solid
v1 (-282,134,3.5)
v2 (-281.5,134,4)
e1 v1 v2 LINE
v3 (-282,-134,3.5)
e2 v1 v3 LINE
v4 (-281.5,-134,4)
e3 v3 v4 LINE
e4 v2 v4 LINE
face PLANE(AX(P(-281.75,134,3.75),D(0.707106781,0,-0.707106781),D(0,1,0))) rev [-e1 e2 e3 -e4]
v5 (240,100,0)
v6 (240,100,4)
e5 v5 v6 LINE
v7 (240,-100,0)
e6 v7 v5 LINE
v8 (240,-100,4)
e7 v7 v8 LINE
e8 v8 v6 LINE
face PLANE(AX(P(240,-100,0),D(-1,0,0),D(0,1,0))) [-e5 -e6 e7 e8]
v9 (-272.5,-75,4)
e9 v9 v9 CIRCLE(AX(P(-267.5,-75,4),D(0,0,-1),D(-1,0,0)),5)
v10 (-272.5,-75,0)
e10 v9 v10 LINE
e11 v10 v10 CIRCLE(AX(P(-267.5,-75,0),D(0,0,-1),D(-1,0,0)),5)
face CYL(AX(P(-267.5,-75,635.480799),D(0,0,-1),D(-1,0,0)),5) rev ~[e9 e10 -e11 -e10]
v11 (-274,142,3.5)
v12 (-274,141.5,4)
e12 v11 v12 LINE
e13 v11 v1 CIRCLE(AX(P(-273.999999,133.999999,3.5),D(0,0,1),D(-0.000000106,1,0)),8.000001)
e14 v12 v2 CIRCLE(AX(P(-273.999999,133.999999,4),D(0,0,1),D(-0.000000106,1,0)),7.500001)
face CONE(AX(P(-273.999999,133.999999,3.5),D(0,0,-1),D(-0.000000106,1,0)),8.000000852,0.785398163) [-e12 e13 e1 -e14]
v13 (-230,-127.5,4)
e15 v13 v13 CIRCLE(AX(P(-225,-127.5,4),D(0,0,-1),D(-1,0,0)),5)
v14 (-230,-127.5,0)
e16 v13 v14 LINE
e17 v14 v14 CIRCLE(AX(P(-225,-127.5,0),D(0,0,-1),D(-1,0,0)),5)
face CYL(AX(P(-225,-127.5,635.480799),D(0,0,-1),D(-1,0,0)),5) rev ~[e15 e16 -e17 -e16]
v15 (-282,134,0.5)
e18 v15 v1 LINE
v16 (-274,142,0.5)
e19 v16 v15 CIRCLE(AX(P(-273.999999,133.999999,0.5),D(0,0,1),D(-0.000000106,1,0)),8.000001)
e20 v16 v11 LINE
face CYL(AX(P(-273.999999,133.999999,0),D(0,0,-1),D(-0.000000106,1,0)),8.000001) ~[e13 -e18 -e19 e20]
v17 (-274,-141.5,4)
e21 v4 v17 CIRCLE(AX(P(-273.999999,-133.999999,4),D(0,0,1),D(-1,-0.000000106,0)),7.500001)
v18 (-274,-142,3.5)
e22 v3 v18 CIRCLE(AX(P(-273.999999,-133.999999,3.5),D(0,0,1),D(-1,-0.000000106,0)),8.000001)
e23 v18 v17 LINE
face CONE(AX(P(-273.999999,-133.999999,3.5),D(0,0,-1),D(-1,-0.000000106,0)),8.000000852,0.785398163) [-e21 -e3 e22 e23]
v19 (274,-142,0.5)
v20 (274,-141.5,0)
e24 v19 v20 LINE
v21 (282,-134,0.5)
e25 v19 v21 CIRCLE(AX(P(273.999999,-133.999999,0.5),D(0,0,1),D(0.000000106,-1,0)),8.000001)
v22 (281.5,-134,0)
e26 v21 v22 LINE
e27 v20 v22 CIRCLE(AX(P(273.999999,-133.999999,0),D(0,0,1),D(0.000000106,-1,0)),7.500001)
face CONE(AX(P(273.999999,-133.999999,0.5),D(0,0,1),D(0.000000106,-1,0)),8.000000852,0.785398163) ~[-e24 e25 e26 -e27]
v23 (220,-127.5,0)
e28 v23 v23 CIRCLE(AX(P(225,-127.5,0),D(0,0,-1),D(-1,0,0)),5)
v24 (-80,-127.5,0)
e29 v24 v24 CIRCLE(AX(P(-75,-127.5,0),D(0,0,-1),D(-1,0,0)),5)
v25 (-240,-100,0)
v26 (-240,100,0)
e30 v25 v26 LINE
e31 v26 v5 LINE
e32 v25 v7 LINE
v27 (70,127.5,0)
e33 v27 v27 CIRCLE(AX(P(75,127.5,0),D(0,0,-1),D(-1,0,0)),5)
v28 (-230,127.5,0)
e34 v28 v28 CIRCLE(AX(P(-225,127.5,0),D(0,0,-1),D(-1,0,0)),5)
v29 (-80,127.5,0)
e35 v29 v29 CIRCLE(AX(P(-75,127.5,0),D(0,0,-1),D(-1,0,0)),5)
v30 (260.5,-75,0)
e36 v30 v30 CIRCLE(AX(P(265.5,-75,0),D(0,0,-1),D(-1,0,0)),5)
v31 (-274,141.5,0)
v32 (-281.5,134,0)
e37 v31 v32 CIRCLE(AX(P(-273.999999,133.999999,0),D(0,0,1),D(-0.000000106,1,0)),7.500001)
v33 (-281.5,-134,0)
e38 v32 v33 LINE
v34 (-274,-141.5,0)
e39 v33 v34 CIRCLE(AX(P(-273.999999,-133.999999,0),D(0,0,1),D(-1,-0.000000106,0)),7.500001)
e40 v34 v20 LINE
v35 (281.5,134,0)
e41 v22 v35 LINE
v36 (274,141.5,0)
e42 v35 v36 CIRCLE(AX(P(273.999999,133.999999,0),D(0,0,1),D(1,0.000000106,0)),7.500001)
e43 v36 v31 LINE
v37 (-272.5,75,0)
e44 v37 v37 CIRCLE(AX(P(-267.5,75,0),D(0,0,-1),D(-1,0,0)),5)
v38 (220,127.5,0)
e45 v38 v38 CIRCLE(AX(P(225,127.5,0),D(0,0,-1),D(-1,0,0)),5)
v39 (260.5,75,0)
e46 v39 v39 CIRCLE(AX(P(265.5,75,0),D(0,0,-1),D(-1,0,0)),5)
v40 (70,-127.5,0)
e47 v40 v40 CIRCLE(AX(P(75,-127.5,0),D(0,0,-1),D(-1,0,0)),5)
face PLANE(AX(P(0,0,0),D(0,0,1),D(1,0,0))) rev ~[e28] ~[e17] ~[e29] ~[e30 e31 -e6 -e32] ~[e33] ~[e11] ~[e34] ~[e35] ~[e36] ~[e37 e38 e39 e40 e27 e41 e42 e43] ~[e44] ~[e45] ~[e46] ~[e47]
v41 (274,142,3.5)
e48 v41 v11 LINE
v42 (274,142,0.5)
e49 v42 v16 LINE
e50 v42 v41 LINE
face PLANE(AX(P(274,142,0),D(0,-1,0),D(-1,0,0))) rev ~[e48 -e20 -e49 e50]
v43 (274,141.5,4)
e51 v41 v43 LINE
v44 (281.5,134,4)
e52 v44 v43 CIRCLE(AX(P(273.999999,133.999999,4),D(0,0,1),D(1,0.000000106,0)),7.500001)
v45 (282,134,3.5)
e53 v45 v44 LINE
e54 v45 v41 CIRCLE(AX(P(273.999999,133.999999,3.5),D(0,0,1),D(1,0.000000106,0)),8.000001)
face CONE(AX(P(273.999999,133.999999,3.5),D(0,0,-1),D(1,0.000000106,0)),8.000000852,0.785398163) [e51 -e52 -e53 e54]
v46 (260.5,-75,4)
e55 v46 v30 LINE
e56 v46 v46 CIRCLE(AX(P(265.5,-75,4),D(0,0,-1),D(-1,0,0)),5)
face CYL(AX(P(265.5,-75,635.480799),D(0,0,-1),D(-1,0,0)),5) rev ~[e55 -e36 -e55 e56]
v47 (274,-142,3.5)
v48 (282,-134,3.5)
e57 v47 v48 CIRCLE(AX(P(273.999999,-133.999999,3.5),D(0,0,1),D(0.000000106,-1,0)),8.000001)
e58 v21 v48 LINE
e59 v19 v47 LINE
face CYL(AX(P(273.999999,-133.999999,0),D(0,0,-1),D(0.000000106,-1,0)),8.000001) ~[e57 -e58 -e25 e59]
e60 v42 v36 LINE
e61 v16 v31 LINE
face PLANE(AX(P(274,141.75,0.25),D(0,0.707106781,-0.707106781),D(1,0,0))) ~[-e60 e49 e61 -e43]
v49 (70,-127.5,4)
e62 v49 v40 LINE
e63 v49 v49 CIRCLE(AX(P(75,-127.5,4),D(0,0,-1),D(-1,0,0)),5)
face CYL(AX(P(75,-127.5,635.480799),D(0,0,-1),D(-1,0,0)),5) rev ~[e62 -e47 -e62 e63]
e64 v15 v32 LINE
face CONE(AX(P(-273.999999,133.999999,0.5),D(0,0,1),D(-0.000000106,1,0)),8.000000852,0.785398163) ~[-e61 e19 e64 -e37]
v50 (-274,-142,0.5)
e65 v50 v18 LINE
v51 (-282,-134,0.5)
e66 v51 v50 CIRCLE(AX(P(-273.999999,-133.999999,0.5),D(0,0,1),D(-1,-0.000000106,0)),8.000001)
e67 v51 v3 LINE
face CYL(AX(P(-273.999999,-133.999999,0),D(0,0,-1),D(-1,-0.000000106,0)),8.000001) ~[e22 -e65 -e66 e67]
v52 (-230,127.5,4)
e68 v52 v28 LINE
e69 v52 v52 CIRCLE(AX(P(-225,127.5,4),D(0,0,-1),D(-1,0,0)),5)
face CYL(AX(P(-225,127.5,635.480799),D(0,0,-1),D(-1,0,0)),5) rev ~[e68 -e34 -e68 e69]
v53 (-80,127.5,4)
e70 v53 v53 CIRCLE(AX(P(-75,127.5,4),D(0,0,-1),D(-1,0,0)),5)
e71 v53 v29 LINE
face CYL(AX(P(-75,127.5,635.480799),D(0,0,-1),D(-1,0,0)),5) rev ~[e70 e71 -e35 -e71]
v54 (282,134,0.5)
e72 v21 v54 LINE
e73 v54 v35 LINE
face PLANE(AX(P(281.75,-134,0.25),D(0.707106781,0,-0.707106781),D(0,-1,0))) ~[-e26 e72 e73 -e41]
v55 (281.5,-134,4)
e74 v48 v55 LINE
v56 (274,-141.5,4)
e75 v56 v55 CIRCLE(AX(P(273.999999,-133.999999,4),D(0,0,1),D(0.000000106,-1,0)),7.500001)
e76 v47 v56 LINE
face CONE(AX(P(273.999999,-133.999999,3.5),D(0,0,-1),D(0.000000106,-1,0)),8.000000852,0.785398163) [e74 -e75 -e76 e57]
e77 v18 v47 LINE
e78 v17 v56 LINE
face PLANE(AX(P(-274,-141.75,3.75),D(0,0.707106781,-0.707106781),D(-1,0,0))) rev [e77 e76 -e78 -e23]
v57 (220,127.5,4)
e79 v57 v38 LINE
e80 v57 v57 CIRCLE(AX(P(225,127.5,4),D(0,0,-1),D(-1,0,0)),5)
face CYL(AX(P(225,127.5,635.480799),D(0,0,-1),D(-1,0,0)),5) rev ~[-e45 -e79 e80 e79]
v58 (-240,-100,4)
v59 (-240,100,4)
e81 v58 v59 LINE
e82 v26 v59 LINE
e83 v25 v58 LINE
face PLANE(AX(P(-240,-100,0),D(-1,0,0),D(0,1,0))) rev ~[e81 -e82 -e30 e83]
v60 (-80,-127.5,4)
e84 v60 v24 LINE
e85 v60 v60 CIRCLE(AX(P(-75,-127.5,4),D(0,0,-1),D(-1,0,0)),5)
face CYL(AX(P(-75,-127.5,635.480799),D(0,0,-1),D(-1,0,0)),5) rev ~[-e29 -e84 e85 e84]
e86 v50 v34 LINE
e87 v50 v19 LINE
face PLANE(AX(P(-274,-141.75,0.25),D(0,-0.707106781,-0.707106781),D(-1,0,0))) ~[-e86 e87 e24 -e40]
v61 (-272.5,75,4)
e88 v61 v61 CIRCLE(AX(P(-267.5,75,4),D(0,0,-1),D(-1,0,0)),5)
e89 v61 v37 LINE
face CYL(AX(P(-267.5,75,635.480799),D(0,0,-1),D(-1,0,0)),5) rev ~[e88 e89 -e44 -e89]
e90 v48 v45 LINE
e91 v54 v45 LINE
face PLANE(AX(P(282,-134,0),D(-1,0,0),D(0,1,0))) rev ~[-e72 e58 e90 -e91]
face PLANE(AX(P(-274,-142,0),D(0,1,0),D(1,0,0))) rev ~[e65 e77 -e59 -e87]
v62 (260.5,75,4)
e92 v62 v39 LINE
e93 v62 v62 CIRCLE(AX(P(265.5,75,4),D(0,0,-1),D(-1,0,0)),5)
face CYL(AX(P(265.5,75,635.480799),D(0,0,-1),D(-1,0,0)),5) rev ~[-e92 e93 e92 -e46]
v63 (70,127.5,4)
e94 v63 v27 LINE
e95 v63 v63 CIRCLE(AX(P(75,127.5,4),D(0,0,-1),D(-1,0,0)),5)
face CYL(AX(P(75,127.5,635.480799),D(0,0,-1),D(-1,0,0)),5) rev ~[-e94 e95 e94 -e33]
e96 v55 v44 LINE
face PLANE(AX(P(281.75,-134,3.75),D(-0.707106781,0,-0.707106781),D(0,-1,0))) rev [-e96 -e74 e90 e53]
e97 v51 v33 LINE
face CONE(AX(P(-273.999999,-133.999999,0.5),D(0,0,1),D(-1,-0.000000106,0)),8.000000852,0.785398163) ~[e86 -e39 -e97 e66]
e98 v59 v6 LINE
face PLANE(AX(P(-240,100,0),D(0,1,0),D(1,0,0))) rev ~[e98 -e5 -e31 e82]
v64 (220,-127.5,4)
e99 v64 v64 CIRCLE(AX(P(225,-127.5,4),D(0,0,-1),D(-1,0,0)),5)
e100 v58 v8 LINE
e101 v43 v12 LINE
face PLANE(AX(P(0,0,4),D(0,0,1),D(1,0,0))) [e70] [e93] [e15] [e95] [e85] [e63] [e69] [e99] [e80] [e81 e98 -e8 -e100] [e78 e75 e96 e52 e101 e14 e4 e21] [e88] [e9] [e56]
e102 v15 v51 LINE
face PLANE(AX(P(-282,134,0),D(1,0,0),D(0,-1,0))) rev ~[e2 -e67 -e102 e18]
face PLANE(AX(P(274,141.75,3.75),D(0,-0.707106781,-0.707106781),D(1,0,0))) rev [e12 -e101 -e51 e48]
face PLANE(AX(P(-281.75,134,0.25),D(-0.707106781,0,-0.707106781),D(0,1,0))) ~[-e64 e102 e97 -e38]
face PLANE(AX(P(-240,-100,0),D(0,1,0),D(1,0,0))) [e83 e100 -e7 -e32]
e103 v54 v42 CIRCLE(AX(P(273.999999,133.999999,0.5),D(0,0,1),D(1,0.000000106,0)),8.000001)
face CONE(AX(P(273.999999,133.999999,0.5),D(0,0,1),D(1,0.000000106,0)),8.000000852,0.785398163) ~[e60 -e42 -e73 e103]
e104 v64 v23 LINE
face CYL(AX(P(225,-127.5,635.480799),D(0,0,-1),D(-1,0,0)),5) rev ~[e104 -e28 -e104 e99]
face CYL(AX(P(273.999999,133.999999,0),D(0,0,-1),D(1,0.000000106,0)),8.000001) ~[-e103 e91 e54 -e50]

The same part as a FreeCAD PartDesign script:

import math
import FreeCAD as App
import Part
import Sketcher


def edges_at(feature, points):
    """Names of the edges that pass closest to the given points."""
    edges = feature.Shape.Edges
    near = lambda p: min(range(len(edges)), key=lambda i: edges[i].distToShape(Part.Vertex(*p))[0])
    return sorted({f"Edge{near(p) + 1}" for p in points})


def add_polygon(sketch, points):
    """Adds a closed chain of lines whose ends are joined by coincident constraints."""
    first, n = sketch.GeometryCount, len(points)
    for a, b in zip(points, points[1:] + points[:1]):
        sketch.addGeometry(Part.LineSegment(App.Vector(*a, 0), App.Vector(*b, 0)), False)
    for i in range(n):
        sketch.addConstraint(Sketcher.Constraint("Coincident", first + i, 2, first + (i + 1) % n, 1))

doc = App.newDocument("Part")
body = doc.addObject("PartDesign::Body", "Body")

# Sketch on XY plane
sketch1 = body.newObject("Sketcher::SketchObject", "Sketch")
sketch1.AttachmentSupport = (doc.getObject("XY_Plane"), [""])
sketch1.MapMode = "FlatFace"
sketch1.addGeometry(Part.LineSegment(App.Vector(-274, -142, 0), App.Vector(274, -142, 0)), False)  # 0
sketch1.addGeometry(Part.ArcOfCircle(Part.Circle(App.Vector(274, -134, 0), App.Vector(0, 0, 1), 8), math.radians(-90), math.radians(0)), False)  # 1
sketch1.addGeometry(Part.LineSegment(App.Vector(282, -134, 0), App.Vector(282, 134, 0)), False)  # 2
sketch1.addGeometry(Part.ArcOfCircle(Part.Circle(App.Vector(274, 134, 0), App.Vector(0, 0, 1), 8), math.radians(0), math.radians(90)), False)  # 3
sketch1.addGeometry(Part.LineSegment(App.Vector(274, 142, 0), App.Vector(-274, 142, 0)), False)  # 4
sketch1.addGeometry(Part.ArcOfCircle(Part.Circle(App.Vector(-274, 134, 0), App.Vector(0, 0, 1), 8), math.radians(90), math.radians(180)), False)  # 5
sketch1.addGeometry(Part.LineSegment(App.Vector(-282, 134, 0), App.Vector(-282, -134, 0)), False)  # 6
sketch1.addGeometry(Part.ArcOfCircle(Part.Circle(App.Vector(-274, -134, 0), App.Vector(0, 0, 1), 8), math.radians(-180), math.radians(-90)), False)  # 7
add_polygon(sketch1, [(240, -100), (-240, -100), (-240, 100), (240, 100)])  # lines 8-11
sketch1.addConstraint([
    Sketcher.Constraint("Tangent", 0, 2, 1, 1),
    Sketcher.Constraint("Tangent", 1, 2, 2, 1),
    Sketcher.Constraint("Tangent", 2, 2, 3, 1),
    Sketcher.Constraint("Tangent", 3, 2, 4, 1),
    Sketcher.Constraint("Tangent", 4, 2, 5, 1),
    Sketcher.Constraint("Tangent", 5, 2, 6, 1),
    Sketcher.Constraint("Tangent", 6, 2, 7, 1),
    Sketcher.Constraint("Tangent", 7, 2, 0, 1),
    Sketcher.Constraint("Horizontal", 0),
    Sketcher.Constraint("Vertical", 2),
    Sketcher.Constraint("Horizontal", 4),
    Sketcher.Constraint("Vertical", 6),
    Sketcher.Constraint("Horizontal", 8),
    Sketcher.Constraint("Vertical", 9),
    Sketcher.Constraint("Horizontal", 10),
    Sketcher.Constraint("Vertical", 11),
    Sketcher.Constraint("Equal", 1, 3),
    Sketcher.Constraint("Equal", 3, 5),
    Sketcher.Constraint("Equal", 5, 7),
    Sketcher.Constraint("Symmetric", 1, 3, 5, 3, -1, 1),
    Sketcher.Constraint("Symmetric", 8, 2, 10, 2, -1, 1),
    Sketcher.Constraint("Radius", 1, 8.000001),
    Sketcher.Constraint("DistanceX", 0, 1, 0, 2, 548.0),
    Sketcher.Constraint("DistanceX", 8, 2, 8, 1, 480.0),
    Sketcher.Constraint("DistanceY", 2, 1, 2, 2, 268.0),
    Sketcher.Constraint("DistanceY", 9, 1, 9, 2, 200.0),
])
pad1 = body.newObject("PartDesign::Pad", "Pad")
pad1.Profile = sketch1
pad1.Length = 4

# Sketch on XY plane
sketch2 = body.newObject("Sketcher::SketchObject", "Sketch001")
sketch2.AttachmentSupport = (doc.getObject("XY_Plane"), [""])
sketch2.MapMode = "FlatFace"
sketch2.AttachmentOffset = App.Placement(App.Vector(0, 0, 4), App.Rotation())
sketch2.addGeometry([
    Part.Circle(App.Vector(-225, 128, 0), App.Vector(0, 0, 1), 5),  # 0
    Part.Circle(App.Vector(-75, 128, 0), App.Vector(0, 0, 1), 5),  # 1
    Part.Circle(App.Vector(75, 128, 0), App.Vector(0, 0, 1), 5),  # 2
    Part.Circle(App.Vector(225, 128, 0), App.Vector(0, 0, 1), 5),  # 3
    Part.Circle(App.Vector(266, 75, 0), App.Vector(0, 0, 1), 5),  # 4
    Part.Circle(App.Vector(266, -75, 0), App.Vector(0, 0, 1), 5),  # 5
    Part.Circle(App.Vector(225, -128, 0), App.Vector(0, 0, 1), 5),  # 6
    Part.Circle(App.Vector(75, -128, 0), App.Vector(0, 0, 1), 5),  # 7
    Part.Circle(App.Vector(-75, -128, 0), App.Vector(0, 0, 1), 5),  # 8
    Part.Circle(App.Vector(-225, -128, 0), App.Vector(0, 0, 1), 5),  # 9
    Part.Circle(App.Vector(-268, 75, 0), App.Vector(0, 0, 1), 5),  # 10
    Part.Circle(App.Vector(-268, -75, 0), App.Vector(0, 0, 1), 5),  # 11
], False)
sketch2.addConstraint([
    Sketcher.Constraint("Equal", 0, 1),
    Sketcher.Constraint("Equal", 1, 2),
    Sketcher.Constraint("Equal", 2, 3),
    Sketcher.Constraint("Equal", 3, 4),
    Sketcher.Constraint("Equal", 4, 5),
    Sketcher.Constraint("Equal", 5, 6),
    Sketcher.Constraint("Equal", 6, 7),
    Sketcher.Constraint("Equal", 7, 8),
    Sketcher.Constraint("Equal", 8, 9),
    Sketcher.Constraint("Equal", 9, 10),
    Sketcher.Constraint("Equal", 10, 11),
    Sketcher.Constraint("Symmetric", 0, 3, 6, 3, -1, 1),
    Sketcher.Constraint("Symmetric", 1, 3, 7, 3, -1, 1),
    Sketcher.Constraint("Symmetric", 2, 3, 8, 3, -1, 1),
    Sketcher.Constraint("Symmetric", 3, 3, 9, 3, -1, 1),
    Sketcher.Constraint("Symmetric", 1, 3, 2, 3, -2),
    Sketcher.Constraint("Symmetric", 0, 3, 3, 3, -2),
    Sketcher.Constraint("Symmetric", 4, 3, 5, 3, -1),
    Sketcher.Constraint("Symmetric", 10, 3, 11, 3, -1),
    Sketcher.Constraint("Horizontal", 0, 3, 1, 3),
    Sketcher.Constraint("Horizontal", 4, 3, 10, 3),
    Sketcher.Constraint("Diameter", 0, 10.0),
    Sketcher.Constraint("DistanceX", 0, 3, -1, 1, 225.0),
    Sketcher.Constraint("DistanceX", 1, 3, -1, 1, 75.0),
    Sketcher.Constraint("DistanceY", -1, 1, 4, 3, 75.0),
    Sketcher.Constraint("DistanceY", 6, 3, 3, 3, 255.0),
    Sketcher.Constraint("DistanceX", -1, 1, 4, 3, 265.5),
    Sketcher.Constraint("DistanceX", 10, 3, -1, 1, 267.5),
])
doc.recompute()
hole = body.newObject("PartDesign::Hole", "Hole")
hole.Profile = sketch2
hole.ThreadType = "None"
hole.Diameter = 10
hole.DepthType = "ThroughAll"
doc.recompute()

chamfer = body.newObject("PartDesign::Chamfer", "Chamfer")
chamfer.Base = (hole, edges_at(hole, [
    (0, -142, 4),
    (-274, -142, 2),
    (274, -142, 2),
    (0, -142, 0),
]))
chamfer.Size = 0.5

doc.recompute()
